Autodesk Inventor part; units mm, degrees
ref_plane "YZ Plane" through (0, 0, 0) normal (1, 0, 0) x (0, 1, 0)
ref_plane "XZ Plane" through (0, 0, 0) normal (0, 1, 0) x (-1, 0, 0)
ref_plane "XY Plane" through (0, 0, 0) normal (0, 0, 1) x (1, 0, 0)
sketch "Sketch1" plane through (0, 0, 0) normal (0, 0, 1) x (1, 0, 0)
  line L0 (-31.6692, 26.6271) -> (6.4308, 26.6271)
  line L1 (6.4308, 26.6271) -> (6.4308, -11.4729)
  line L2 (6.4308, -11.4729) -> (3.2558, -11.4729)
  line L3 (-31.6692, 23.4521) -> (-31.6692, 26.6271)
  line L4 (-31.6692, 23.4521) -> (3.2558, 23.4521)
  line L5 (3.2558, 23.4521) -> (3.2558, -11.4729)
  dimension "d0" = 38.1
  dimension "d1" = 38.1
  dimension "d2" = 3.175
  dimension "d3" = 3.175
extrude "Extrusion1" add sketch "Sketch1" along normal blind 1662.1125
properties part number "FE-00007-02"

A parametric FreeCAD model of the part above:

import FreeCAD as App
import Part
import Sketcher

V = App.Vector
Q = App.Units.Quantity


def add_polygon(sketch, points):
    """Adds a closed chain of lines whose ends are joined by coincident constraints."""
    first, n = sketch.GeometryCount, len(points)
    for a, b in zip(points, points[1:] + points[:1]):
        sketch.addGeometry(Part.LineSegment(App.Vector(*a, 0), App.Vector(*b, 0)), False)
    for i in range(n):
        sketch.addConstraint(Sketcher.Constraint("Coincident", first + i, 2, first + (i + 1) % n, 1))

doc = App.newDocument("Part")
body = doc.addObject("PartDesign::Body", "Body")

# Sketch on XY plane
sketch1 = body.newObject("Sketcher::SketchObject", "Sketch")
sketch1.AttachmentSupport = (doc.getObject("XY_Plane"), [""])
sketch1.MapMode = "FlatFace"
add_polygon(sketch1, [(6.4, 26.6), (-31.7, 26.6), (-31.7, 23.5), (3.3, 23.5), (3.3, -11.5), (6.4, -11.5)])  # lines 0-5
sketch1.addConstraint([
    Sketcher.Constraint("Horizontal", 0),
    Sketcher.Constraint("Vertical", 1),
    Sketcher.Constraint("Horizontal", 2),
    Sketcher.Constraint("Vertical", 3),
    Sketcher.Constraint("Horizontal", 4),
    Sketcher.Constraint("Vertical", 5),
    Sketcher.Constraint("Equal", 4, 1),
    Sketcher.Constraint("Equal", 2, 3),
    Sketcher.Constraint("DistanceX", 0, 2, 0, 1, Q("1.5 in")),
    Sketcher.Constraint("DistanceX", 4, 1, 4, 2, Q("0.125 in")),
    Sketcher.Constraint("DistanceY", -1, 1, 0, 2, Q("1.0483 in")),
    Sketcher.Constraint("DistanceX", 0, 2, -1, 1, 31.6692),
])
pad1 = body.newObject("PartDesign::Pad", "Pad")
pad1.Profile = sketch1
pad1.Length = Q("65.4375 in")

doc.recompute()
